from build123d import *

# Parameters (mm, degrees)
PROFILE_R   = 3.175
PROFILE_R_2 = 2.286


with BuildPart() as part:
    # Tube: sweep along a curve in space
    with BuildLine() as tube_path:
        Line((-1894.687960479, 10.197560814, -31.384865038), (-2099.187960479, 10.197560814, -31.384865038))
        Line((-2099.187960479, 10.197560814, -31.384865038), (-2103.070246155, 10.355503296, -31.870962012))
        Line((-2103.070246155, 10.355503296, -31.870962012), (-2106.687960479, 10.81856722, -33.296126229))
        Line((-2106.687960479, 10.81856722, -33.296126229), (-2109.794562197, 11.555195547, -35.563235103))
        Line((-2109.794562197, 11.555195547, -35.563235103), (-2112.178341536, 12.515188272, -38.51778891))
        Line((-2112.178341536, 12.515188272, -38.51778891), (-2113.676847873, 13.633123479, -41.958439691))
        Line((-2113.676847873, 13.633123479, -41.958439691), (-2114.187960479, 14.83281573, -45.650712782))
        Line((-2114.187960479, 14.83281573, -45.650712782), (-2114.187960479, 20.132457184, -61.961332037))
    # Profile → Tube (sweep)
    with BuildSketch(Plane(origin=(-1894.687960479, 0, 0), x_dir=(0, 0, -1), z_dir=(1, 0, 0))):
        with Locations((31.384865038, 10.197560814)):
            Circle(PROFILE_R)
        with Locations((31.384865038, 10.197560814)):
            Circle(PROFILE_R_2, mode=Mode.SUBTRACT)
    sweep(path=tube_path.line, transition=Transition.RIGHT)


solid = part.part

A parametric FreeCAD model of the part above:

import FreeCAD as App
import Part
import Sketcher
Q = App.Units.Quantity

doc = App.newDocument("Part")
params = doc.addObject("Spreadsheet::Sheet", "Params")
for row, (alias, value) in enumerate([
    ("sketch1_diameter", "0.25 in"),
    ("sketch1_diameter2", "0.18 in"),
], start=1):
    params.set(f"A{row}", alias)
    params.set(f"B{row}", "=" + value)
    params.setAlias(f"B{row}", alias)

body = doc.addObject("PartDesign::Body", "Body")

sketch1 = doc.addObject("Sketcher::SketchObject", "Sketch")
body.addObject(sketch1)
sketch1.AttachmentSupport = (doc.YZ_Plane, [""])
sketch1.MapMode = "FlatFace"
sketch1.AttachmentOffset = App.Placement(App.Vector(0, 0, -1894.68796), App.Rotation())
sketch1.addGeometry([
    Part.Circle(App.Vector(10.2, -31.4, 0), App.Vector(0, 0, 1), 3.2),
    Part.Circle(App.Vector(10.2, -31.4, 0), App.Vector(0, 0, 1), 2.3),
], False)
sketch1.addConstraint([
    Sketcher.Constraint("Coincident", 1, 3, 0, 3),
    Sketcher.Constraint("Diameter", 0, Q("0.25 in")),
    Sketcher.Constraint("Diameter", 1, Q("0.18 in")),
    Sketcher.Constraint("DistanceX", -1, 1, 0, 3, 10.197561),
    Sketcher.Constraint("DistanceY", 0, 3, -1, 1, 31.384865),
])
sketch1.setExpression("Constraints[1]", "Params.sketch1_diameter")
sketch1.setExpression("Constraints[2]", "Params.sketch1_diameter2")

sketch2 = doc.addObject("Sketcher::SketchObject", "Sketch001")
body.addObject(sketch2)
sketch2.Placement = App.Placement(App.Vector(0, 0, 0), App.Rotation(App.Vector(0, -0.309016994, 0.951056516), App.Vector(0.999999999, 0, 0), App.Vector(0, 0.951056516, 0.309016994), "ZXY"))
sketch2.addGeometry([
    Part.LineSegment(App.Vector(-33, -1894.7, 0), App.Vector(-33, -2099.2, 0)),
    Part.LineSegment(App.Vector(-33, -2099.2, 0), App.Vector(-33.5, -2103.1, 0)),
    Part.LineSegment(App.Vector(-33.5, -2103.1, 0), App.Vector(-35, -2106.7, 0)),
    Part.LineSegment(App.Vector(-35, -2106.7, 0), App.Vector(-37.4, -2109.8, 0)),
    Part.LineSegment(App.Vector(-37.4, -2109.8, 0), App.Vector(-40.5, -2112.2, 0)),
    Part.LineSegment(App.Vector(-40.5, -2112.2, 0), App.Vector(-44.1, -2113.7, 0)),
    Part.LineSegment(App.Vector(-44.1, -2113.7, 0), App.Vector(-48, -2114.2, 0)),
    Part.LineSegment(App.Vector(-48, -2114.2, 0), App.Vector(-65.1, -2114.2, 0)),
], False)
sketch2.addConstraint([
    Sketcher.Constraint("Coincident", 0, 2, 1, 1),
    Sketcher.Constraint("Coincident", 1, 2, 2, 1),
    Sketcher.Constraint("Coincident", 2, 2, 3, 1),
    Sketcher.Constraint("Coincident", 3, 2, 4, 1),
    Sketcher.Constraint("Coincident", 4, 2, 5, 1),
    Sketcher.Constraint("Coincident", 5, 2, 6, 1),
    Sketcher.Constraint("Coincident", 6, 2, 7, 1),
    Sketcher.Constraint("Vertical", 0),
    Sketcher.Constraint("Horizontal", 7),
    Sketcher.Constraint("Equal", 1, 2),
    Sketcher.Constraint("Equal", 2, 3),
    Sketcher.Constraint("Equal", 3, 4),
    Sketcher.Constraint("Equal", 4, 5),
    Sketcher.Constraint("Equal", 5, 6),
    Sketcher.Constraint("Angle", 1, Q("-97.5 deg")),
    Sketcher.Constraint("Angle", 2, Q("-112.5 deg")),
    Sketcher.Constraint("Angle", 3, Q("-127.5 deg")),
    Sketcher.Constraint("Angle", 4, Q("-142.5 deg")),
    Sketcher.Constraint("Angle", 5, Q("-157.5 deg")),
    Sketcher.Constraint("Angle", 6, Q("-172.5 deg")),
    Sketcher.Constraint("DistanceX", 7, 2, 7, 1, 17.15),
    Sketcher.Constraint("DistanceY", 0, 2, 0, 1, 204.5),
    Sketcher.Constraint("DistanceX", 0, 1, -1, 1, 33.0),
    Sketcher.Constraint("DistanceX", 3, 2, -1, 1, 37.393398),
    Sketcher.Constraint("DistanceY", 3, 2, -1, 1, 2109.794559),
])
doc.recompute()

additivepipe = doc.addObject("PartDesign::AdditivePipe", "AdditivePipe")
body.addObject(additivepipe)
additivepipe.Profile = sketch1
additivepipe.Spine = (sketch2, ["Edge1", "Edge2", "Edge3", "Edge4", "Edge5", "Edge6", "Edge7", "Edge8"])
additivepipe.Transition = "Right corner"

doc.recompute()
